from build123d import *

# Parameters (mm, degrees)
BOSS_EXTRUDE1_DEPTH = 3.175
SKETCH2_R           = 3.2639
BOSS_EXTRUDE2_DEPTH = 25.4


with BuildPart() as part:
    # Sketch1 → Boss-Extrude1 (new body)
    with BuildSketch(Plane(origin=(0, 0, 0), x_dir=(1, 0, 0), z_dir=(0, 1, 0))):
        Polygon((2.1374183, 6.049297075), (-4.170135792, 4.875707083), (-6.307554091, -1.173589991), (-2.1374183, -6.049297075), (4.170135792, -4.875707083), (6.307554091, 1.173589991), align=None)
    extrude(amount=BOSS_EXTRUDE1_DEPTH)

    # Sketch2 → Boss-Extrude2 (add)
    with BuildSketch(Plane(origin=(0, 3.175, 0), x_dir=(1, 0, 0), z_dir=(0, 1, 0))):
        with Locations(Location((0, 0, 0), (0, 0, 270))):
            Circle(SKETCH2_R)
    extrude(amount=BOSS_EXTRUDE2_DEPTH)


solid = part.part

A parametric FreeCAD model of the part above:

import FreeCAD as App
import Part
import Sketcher
from FreeCAD import Vector
Q = App.Units.Quantity

doc = App.newDocument("Part")
body = doc.addObject("PartDesign::Body", "Body")

sketch1 = doc.addObject("Sketcher::SketchObject", "Sketch")
body.addObject(sketch1)
sketch1.AttachmentSupport = (doc.XZ_Plane, [""])
sketch1.MapMode = "FlatFace"
sketch1.addGeometry(Part.LineSegment(Vector(2, -6, 0), Vector(-4, -5, 0)), False)
sketch1.addGeometry(Part.LineSegment(Vector(-4, -5, 0), Vector(-6, 1, 0)), False)
sketch1.addGeometry(Part.LineSegment(Vector(-6, 1, 0), Vector(-2, 6, 0)), False)
sketch1.addGeometry(Part.LineSegment(Vector(-2, 6, 0), Vector(4, 5, 0)), False)
sketch1.addGeometry(Part.LineSegment(Vector(4, 5, 0), Vector(6, -1, 0)), False)
sketch1.addGeometry(Part.LineSegment(Vector(6, -1, 0), Vector(2, -6, 0)), False)
sketch1.addConstraint(Sketcher.Constraint("Coincident", 0, 2, 1, 1))
sketch1.addConstraint(Sketcher.Constraint("Coincident", 1, 2, 2, 1))
sketch1.addConstraint(Sketcher.Constraint("Coincident", 2, 2, 3, 1))
sketch1.addConstraint(Sketcher.Constraint("Coincident", 3, 2, 4, 1))
sketch1.addConstraint(Sketcher.Constraint("Coincident", 4, 2, 5, 1))
sketch1.addConstraint(Sketcher.Constraint("Coincident", 5, 2, 0, 1))
sketch1.addConstraint(Sketcher.Constraint("Symmetric", 0, 2, 3, 2, -1, 1))
sketch1.addConstraint(Sketcher.Constraint("Symmetric", 1, 2, 4, 2, -1, 1))
sketch1.addConstraint(Sketcher.Constraint("Symmetric", 2, 2, 5, 2, -1, 1))
sketch1.addConstraint(Sketcher.Constraint("Equal", 0, 1))
sketch1.addConstraint(Sketcher.Constraint("Equal", 1, 2))
sketch1.addConstraint(Sketcher.Constraint("Angle", 0, Q("169.460012 deg")))
sketch1.addConstraint(Sketcher.Constraint("Angle", 1, Q("109.460012 deg")))
sketch1.addConstraint(Sketcher.Constraint("Angle", 2, Q("49.460012 deg")))
sketch1.addConstraint(Sketcher.Constraint("DistanceY", -1, 1, 1, 2, 1.17359))
pad1 = doc.addObject("PartDesign::Pad", "Pad")
body.addObject(pad1)
pad1.Profile = sketch1
pad1.Length = Q("0.125 in")
pad1.Reversed = True

sketch2 = doc.addObject("Sketcher::SketchObject", "Sketch001")
body.addObject(sketch2)
sketch2.AttachmentSupport = (doc.XZ_Plane, [""])
sketch2.MapMode = "FlatFace"
sketch2.AttachmentOffset = App.Placement(Vector(0, 0, -0.125 * 25.4), App.Rotation())
sketch2.addGeometry(Part.Circle(Vector(0, 0, 0), Vector(0, 0, 1), 3.3), False)
sketch2.addConstraint(Sketcher.Constraint("Coincident", 0, 3, -1, 1))
sketch2.addConstraint(Sketcher.Constraint("Diameter", 0, Q("0.257 in")))
pad2 = doc.addObject("PartDesign::Pad", "Pad001")
body.addObject(pad2)
pad2.Profile = sketch2
pad2.Length = Q("1 in")
pad2.Reversed = True

doc.recompute()
